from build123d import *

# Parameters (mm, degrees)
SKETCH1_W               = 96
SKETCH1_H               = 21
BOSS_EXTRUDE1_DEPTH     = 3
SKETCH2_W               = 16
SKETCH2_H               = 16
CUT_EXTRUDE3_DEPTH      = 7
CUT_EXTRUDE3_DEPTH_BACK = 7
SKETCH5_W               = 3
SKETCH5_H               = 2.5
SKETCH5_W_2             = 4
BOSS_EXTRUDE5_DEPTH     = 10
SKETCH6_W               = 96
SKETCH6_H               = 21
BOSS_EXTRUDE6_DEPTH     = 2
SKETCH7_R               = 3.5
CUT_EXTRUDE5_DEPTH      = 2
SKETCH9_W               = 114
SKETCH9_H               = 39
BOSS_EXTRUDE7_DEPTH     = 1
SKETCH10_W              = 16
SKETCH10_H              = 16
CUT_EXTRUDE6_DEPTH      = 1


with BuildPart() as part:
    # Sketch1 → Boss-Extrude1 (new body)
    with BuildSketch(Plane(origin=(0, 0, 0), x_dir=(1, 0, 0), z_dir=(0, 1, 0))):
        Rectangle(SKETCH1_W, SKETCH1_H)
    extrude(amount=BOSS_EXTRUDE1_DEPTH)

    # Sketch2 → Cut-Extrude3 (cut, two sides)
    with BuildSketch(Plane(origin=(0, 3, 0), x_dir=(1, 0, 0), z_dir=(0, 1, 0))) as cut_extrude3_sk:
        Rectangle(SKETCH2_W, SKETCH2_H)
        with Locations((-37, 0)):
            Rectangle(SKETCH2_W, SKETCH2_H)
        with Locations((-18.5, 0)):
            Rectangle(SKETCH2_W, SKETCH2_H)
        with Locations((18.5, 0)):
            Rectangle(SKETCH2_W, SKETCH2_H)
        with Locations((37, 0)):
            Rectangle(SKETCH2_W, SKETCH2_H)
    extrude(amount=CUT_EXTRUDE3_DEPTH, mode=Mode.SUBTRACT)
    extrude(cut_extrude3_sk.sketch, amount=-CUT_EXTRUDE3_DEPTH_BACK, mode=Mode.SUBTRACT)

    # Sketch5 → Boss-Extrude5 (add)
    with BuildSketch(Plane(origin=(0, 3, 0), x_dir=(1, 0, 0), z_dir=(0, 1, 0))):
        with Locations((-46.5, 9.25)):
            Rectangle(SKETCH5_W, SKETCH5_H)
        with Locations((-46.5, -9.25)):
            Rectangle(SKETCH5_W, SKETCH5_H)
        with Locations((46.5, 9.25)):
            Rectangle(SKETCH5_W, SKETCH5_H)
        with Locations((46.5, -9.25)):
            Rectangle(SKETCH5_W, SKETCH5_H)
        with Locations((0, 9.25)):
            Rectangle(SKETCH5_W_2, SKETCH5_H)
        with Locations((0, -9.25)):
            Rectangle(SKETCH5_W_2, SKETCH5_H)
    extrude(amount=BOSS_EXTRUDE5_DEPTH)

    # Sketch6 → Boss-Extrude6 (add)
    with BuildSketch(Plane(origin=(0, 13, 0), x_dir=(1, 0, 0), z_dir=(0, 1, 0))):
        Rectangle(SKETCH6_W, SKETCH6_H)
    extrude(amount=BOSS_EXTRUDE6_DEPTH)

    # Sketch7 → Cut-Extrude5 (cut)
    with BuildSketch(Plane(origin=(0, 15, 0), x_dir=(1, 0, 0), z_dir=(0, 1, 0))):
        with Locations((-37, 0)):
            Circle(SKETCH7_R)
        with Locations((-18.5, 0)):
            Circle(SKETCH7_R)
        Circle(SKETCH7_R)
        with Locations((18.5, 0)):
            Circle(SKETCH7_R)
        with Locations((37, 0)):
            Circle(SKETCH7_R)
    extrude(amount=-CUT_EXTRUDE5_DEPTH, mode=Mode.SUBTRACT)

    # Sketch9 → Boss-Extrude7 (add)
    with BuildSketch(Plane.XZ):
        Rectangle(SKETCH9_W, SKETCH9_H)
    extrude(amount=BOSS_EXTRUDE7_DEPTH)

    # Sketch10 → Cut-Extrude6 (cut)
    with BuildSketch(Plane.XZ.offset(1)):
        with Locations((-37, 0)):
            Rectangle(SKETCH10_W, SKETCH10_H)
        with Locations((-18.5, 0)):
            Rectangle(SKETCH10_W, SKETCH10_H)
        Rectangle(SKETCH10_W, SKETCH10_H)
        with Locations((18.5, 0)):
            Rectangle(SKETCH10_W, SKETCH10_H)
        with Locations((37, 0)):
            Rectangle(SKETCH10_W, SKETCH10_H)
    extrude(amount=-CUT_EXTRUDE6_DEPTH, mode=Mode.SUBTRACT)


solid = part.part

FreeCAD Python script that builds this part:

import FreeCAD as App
import Part
import Sketcher
from FreeCAD import Vector
Q = App.Units.Quantity


def add_polygon(sketch, points):
    """Adds a closed chain of lines whose ends are joined by coincident constraints."""
    first, n = sketch.GeometryCount, len(points)
    for a, b in zip(points, points[1:] + points[:1]):
        sketch.addGeometry(Part.LineSegment(App.Vector(*a, 0), App.Vector(*b, 0)), False)
    for i in range(n):
        sketch.addConstraint(Sketcher.Constraint("Coincident", first + i, 2, first + (i + 1) % n, 1))

doc = App.newDocument("Part")
body = doc.addObject("PartDesign::Body", "Body")

sketch1 = doc.addObject("Sketcher::SketchObject", "Sketch")
body.addObject(sketch1)
sketch1.AttachmentSupport = (doc.XZ_Plane, [""])
sketch1.MapMode = "FlatFace"
add_polygon(sketch1, [(-48, -10), (-48, 10), (48, 10), (48, -10)])
sketch1.addConstraint([
    Sketcher.Constraint("Vertical", 0),
    Sketcher.Constraint("Horizontal", 1),
    Sketcher.Constraint("Vertical", 2),
    Sketcher.Constraint("Horizontal", 3),
    Sketcher.Constraint("Symmetric", 0, 2, 2, 2, -1, 1),
    Sketcher.Constraint("DistanceX", 1, 1, 1, 2, Q("96 mm")),
    Sketcher.Constraint("DistanceY", 0, 1, 0, 2, Q("21 mm")),
])
pad1 = doc.addObject("PartDesign::Pad", "Pad")
body.addObject(pad1)
pad1.Profile = sketch1
pad1.Length = 3
pad1.Reversed = True

sketch2 = doc.addObject("Sketcher::SketchObject", "Sketch001")
body.addObject(sketch2)
sketch2.AttachmentSupport = (doc.XZ_Plane, [""])
sketch2.MapMode = "FlatFace"
sketch2.AttachmentOffset = App.Placement(Vector(0, 0, -3), App.Rotation())
add_polygon(sketch2, [(-8, -8), (-8, 8), (8, 8), (8, -8)])
add_polygon(sketch2, [(-45, -8), (-45, 8), (-29, 8), (-29, -8)])
add_polygon(sketch2, [(-26, -8), (-26, 8), (-10, 8), (-10, -8)])
add_polygon(sketch2, [(10, -8), (10, 8), (26, 8), (26, -8)])
add_polygon(sketch2, [(29, -8), (29, 8), (45, 8), (45, -8)])
sketch2.addConstraint([
    Sketcher.Constraint("Vertical", 0),
    Sketcher.Constraint("Horizontal", 1),
    Sketcher.Constraint("Vertical", 2),
    Sketcher.Constraint("Horizontal", 3),
    Sketcher.Constraint("Vertical", 4),
    Sketcher.Constraint("Horizontal", 5),
    Sketcher.Constraint("Vertical", 6),
    Sketcher.Constraint("Horizontal", 7),
    Sketcher.Constraint("Vertical", 8),
    Sketcher.Constraint("Horizontal", 9),
    Sketcher.Constraint("Vertical", 10),
    Sketcher.Constraint("Horizontal", 11),
    Sketcher.Constraint("Vertical", 12),
    Sketcher.Constraint("Horizontal", 13),
    Sketcher.Constraint("Vertical", 14),
    Sketcher.Constraint("Horizontal", 15),
    Sketcher.Constraint("Vertical", 16),
    Sketcher.Constraint("Horizontal", 17),
    Sketcher.Constraint("Vertical", 18),
    Sketcher.Constraint("Horizontal", 19),
    Sketcher.Constraint("Symmetric", 0, 2, 2, 2, -1, 1),
    Sketcher.Constraint("Symmetric", 10, 2, 12, 2, -1, 1),
    Sketcher.Constraint("Symmetric", 8, 2, 14, 2, -1, 1),
    Sketcher.Constraint("Symmetric", 6, 2, 16, 2, -1, 1),
    Sketcher.Constraint("Symmetric", 4, 2, 18, 2, -1, 1),
    Sketcher.Constraint("Horizontal", 1, 2, 4, 2),
    Sketcher.Constraint("Horizontal", 3, 2, 6, 2),
    Sketcher.Constraint("Horizontal", 5, 2, 8, 2),
    Sketcher.Constraint("Horizontal", 7, 2, 10, 2),
    Sketcher.Constraint("Equal", 3, 5),
    Sketcher.Constraint("Equal", 7, 9),
    Sketcher.Constraint("Equal", 19, 0),
    Sketcher.Constraint("DistanceX", 1, 1, 1, 2, Q("16 mm")),
    Sketcher.Constraint("DistanceX", 4, 2, -1, 1, Q("45 mm")),
    Sketcher.Constraint("DistanceX", 9, 2, 12, 2, Q("21 mm")),
])
pocket1 = doc.addObject("PartDesign::Pocket", "Pocket")
body.addObject(pocket1)
pocket1.Profile = sketch2
pocket1.Type = "ThroughAll"
pocket1.Midplane = True

sketch3 = doc.addObject("Sketcher::SketchObject", "Sketch002")
body.addObject(sketch3)
sketch3.AttachmentSupport = (doc.XZ_Plane, [""])
sketch3.MapMode = "FlatFace"
sketch3.AttachmentOffset = App.Placement(Vector(0, 0, -3), App.Rotation())
add_polygon(sketch3, [(-48, -10.5), (-48, -8), (-45, -8), (-45, -10.5)])
add_polygon(sketch3, [(-48, 8), (-48, 10.5), (-45, 10.5), (-45, 8)])
add_polygon(sketch3, [(45, -10.5), (45, -8), (48, -8), (48, -10.5)])
add_polygon(sketch3, [(45, 8), (45, 10.5), (48, 10.5), (48, 8)])
add_polygon(sketch3, [(-2, -10.5), (-2, -8), (2, -8), (2, -10.5)])
add_polygon(sketch3, [(-2, 8), (-2, 10.5), (2, 10.5), (2, 8)])
sketch3.addConstraint([
    Sketcher.Constraint("Vertical", 0),
    Sketcher.Constraint("Horizontal", 1),
    Sketcher.Constraint("Vertical", 2),
    Sketcher.Constraint("Horizontal", 3),
    Sketcher.Constraint("Vertical", 4),
    Sketcher.Constraint("Horizontal", 5),
    Sketcher.Constraint("Vertical", 6),
    Sketcher.Constraint("Horizontal", 7),
    Sketcher.Constraint("Vertical", 8),
    Sketcher.Constraint("Horizontal", 9),
    Sketcher.Constraint("Vertical", 10),
    Sketcher.Constraint("Horizontal", 11),
    Sketcher.Constraint("Vertical", 12),
    Sketcher.Constraint("Horizontal", 13),
    Sketcher.Constraint("Vertical", 14),
    Sketcher.Constraint("Horizontal", 15),
    Sketcher.Constraint("Vertical", 16),
    Sketcher.Constraint("Horizontal", 17),
    Sketcher.Constraint("Vertical", 18),
    Sketcher.Constraint("Horizontal", 19),
    Sketcher.Constraint("Vertical", 20),
    Sketcher.Constraint("Horizontal", 21),
    Sketcher.Constraint("Vertical", 22),
    Sketcher.Constraint("Horizontal", 23),
    Sketcher.Constraint("Symmetric", 6, 2, 8, 2, -1, 1),
    Sketcher.Constraint("Symmetric", 4, 2, 10, 2, -1, 1),
    Sketcher.Constraint("Symmetric", 2, 2, 12, 2, -1, 1),
    Sketcher.Constraint("Symmetric", 0, 2, 14, 2, -1, 1),
    Sketcher.Constraint("Symmetric", 18, 2, 20, 2, -1, 1),
    Sketcher.Constraint("Symmetric", 16, 2, 22, 2, -1, 1),
    Sketcher.Constraint("Symmetric", 1, 2, 8, 2, -2),
    Sketcher.Constraint("Symmetric", 3, 2, 10, 2, -2),
    Sketcher.Constraint("Horizontal", 9, 2, 16, 2),
    Sketcher.Constraint("Horizontal", 11, 2, 18, 2),
    Sketcher.Constraint("Vertical", 19, 2, 20, 2),
    Sketcher.Constraint("DistanceX", 1, 1, 1, 2, Q("3 mm")),
    Sketcher.Constraint("DistanceX", 17, 1, 17, 2, Q("4 mm")),
    Sketcher.Constraint("DistanceY", 0, 1, 0, 2, Q("2.5 mm")),
    Sketcher.Constraint("DistanceX", 0, 2, -1, 1, Q("48 mm")),
    Sketcher.Constraint("DistanceY", 0, 2, -1, 1, Q("8 mm")),
])
pad2 = doc.addObject("PartDesign::Pad", "Pad001")
body.addObject(pad2)
pad2.Profile = sketch3
pad2.Length = 10
pad2.Reversed = True

sketch4 = doc.addObject("Sketcher::SketchObject", "Sketch003")
body.addObject(sketch4)
sketch4.AttachmentSupport = (doc.XZ_Plane, [""])
sketch4.MapMode = "FlatFace"
sketch4.AttachmentOffset = App.Placement(Vector(0, 0, -13), App.Rotation())
add_polygon(sketch4, [(-48, -10), (-48, 10), (48, 10), (48, -10)])
sketch4.addConstraint([
    Sketcher.Constraint("Vertical", 0),
    Sketcher.Constraint("Horizontal", 1),
    Sketcher.Constraint("Vertical", 2),
    Sketcher.Constraint("Horizontal", 3),
    Sketcher.Constraint("Symmetric", 0, 2, 2, 2, -1, 1),
    Sketcher.Constraint("DistanceX", 1, 1, 1, 2, Q("96 mm")),
    Sketcher.Constraint("DistanceY", 0, 1, 0, 2, Q("21 mm")),
])
pad3 = doc.addObject("PartDesign::Pad", "Pad002")
body.addObject(pad3)
pad3.Profile = sketch4
pad3.Length = 2
pad3.Reversed = True

sketch5 = doc.addObject("Sketcher::SketchObject", "Sketch004")
body.addObject(sketch5)
sketch5.AttachmentSupport = (doc.XZ_Plane, [""])
sketch5.MapMode = "FlatFace"
sketch5.AttachmentOffset = App.Placement(Vector(0, 0, -15), App.Rotation())
sketch5.addGeometry([
    Part.Circle(Vector(-37, 0, 0), Vector(0, 0, 1), 3.5),
    Part.Circle(Vector(-18.5, 0, 0), Vector(0, 0, 1), 3.5),
    Part.Circle(Vector(0, 0, 0), Vector(0, 0, 1), 3.5),
    Part.Circle(Vector(18.5, 0, 0), Vector(0, 0, 1), 3.5),
    Part.Circle(Vector(37, 0, 0), Vector(0, 0, 1), 3.5),
], False)
sketch5.addConstraint([
    Sketcher.Constraint("Coincident", 2, 3, -1, 1),
    Sketcher.Constraint("Equal", 0, 1),
    Sketcher.Constraint("Equal", 1, 2),
    Sketcher.Constraint("Equal", 2, 3),
    Sketcher.Constraint("Equal", 3, 4),
    Sketcher.Constraint("Symmetric", 1, 3, 3, 3, -1, 1),
    Sketcher.Constraint("Symmetric", 0, 3, 4, 3, -1, 1),
    Sketcher.Constraint("PointOnObject", 0, 3, -1),
    Sketcher.Constraint("PointOnObject", 1, 3, -1),
    Sketcher.Constraint("Diameter", 0, Q("7 mm")),
    Sketcher.Constraint("DistanceX", 0, 3, -1, 1, Q("37 mm")),
    Sketcher.Constraint("DistanceX", 1, 3, 3, 3, Q("37 mm")),
])
pocket2 = doc.addObject("PartDesign::Pocket", "Pocket001")
body.addObject(pocket2)
pocket2.Profile = sketch5
pocket2.Length = 2
pocket2.Reversed = True

sketch6 = doc.addObject("Sketcher::SketchObject", "Sketch005")
body.addObject(sketch6)
sketch6.AttachmentSupport = (doc.XZ_Plane, [""])
sketch6.MapMode = "FlatFace"
add_polygon(sketch6, [(-57, 20), (-57, -20), (57, -20), (57, 20)])
sketch6.addConstraint([
    Sketcher.Constraint("Vertical", 0),
    Sketcher.Constraint("Horizontal", 1),
    Sketcher.Constraint("Vertical", 2),
    Sketcher.Constraint("Horizontal", 3),
    Sketcher.Constraint("Symmetric", 0, 2, 2, 2, -1, 1),
    Sketcher.Constraint("DistanceX", 1, 1, 1, 2, Q("114 mm")),
    Sketcher.Constraint("DistanceY", 0, 2, 0, 1, Q("39 mm")),
])
pad4 = doc.addObject("PartDesign::Pad", "Pad003")
body.addObject(pad4)
pad4.Profile = sketch6
pad4.Length = 1

sketch7 = doc.addObject("Sketcher::SketchObject", "Sketch006")
body.addObject(sketch7)
sketch7.AttachmentSupport = (doc.XZ_Plane, [""])
sketch7.MapMode = "FlatFace"
sketch7.AttachmentOffset = App.Placement(Vector(0, 0, 1), App.Rotation())
add_polygon(sketch7, [(-45, 8), (-45, -8), (-29, -8), (-29, 8)])
add_polygon(sketch7, [(-26, 8), (-26, -8), (-10, -8), (-10, 8)])
add_polygon(sketch7, [(-8, 8), (-8, -8), (8, -8), (8, 8)])
add_polygon(sketch7, [(10, 8), (10, -8), (26, -8), (26, 8)])
add_polygon(sketch7, [(29, 8), (29, -8), (45, -8), (45, 8)])
sketch7.addConstraint([
    Sketcher.Constraint("Vertical", 0),
    Sketcher.Constraint("Horizontal", 1),
    Sketcher.Constraint("Vertical", 2),
    Sketcher.Constraint("Horizontal", 3),
    Sketcher.Constraint("Vertical", 4),
    Sketcher.Constraint("Horizontal", 5),
    Sketcher.Constraint("Vertical", 6),
    Sketcher.Constraint("Horizontal", 7),
    Sketcher.Constraint("Vertical", 8),
    Sketcher.Constraint("Horizontal", 9),
    Sketcher.Constraint("Vertical", 10),
    Sketcher.Constraint("Horizontal", 11),
    Sketcher.Constraint("Vertical", 12),
    Sketcher.Constraint("Horizontal", 13),
    Sketcher.Constraint("Vertical", 14),
    Sketcher.Constraint("Horizontal", 15),
    Sketcher.Constraint("Vertical", 16),
    Sketcher.Constraint("Horizontal", 17),
    Sketcher.Constraint("Vertical", 18),
    Sketcher.Constraint("Horizontal", 19),
    Sketcher.Constraint("Symmetric", 8, 2, 10, 2, -1, 1),
    Sketcher.Constraint("Symmetric", 6, 2, 12, 2, -1, 1),
    Sketcher.Constraint("Symmetric", 4, 2, 14, 2, -1, 1),
    Sketcher.Constraint("Symmetric", 2, 2, 16, 2, -1, 1),
    Sketcher.Constraint("Symmetric", 0, 2, 18, 2, -1, 1),
    Sketcher.Constraint("Horizontal", 1, 2, 4, 2),
    Sketcher.Constraint("Horizontal", 3, 2, 6, 2),
    Sketcher.Constraint("Horizontal", 5, 2, 8, 2),
    Sketcher.Constraint("Horizontal", 7, 2, 10, 2),
    Sketcher.Constraint("Equal", 3, 5),
    Sketcher.Constraint("Equal", 7, 9),
    Sketcher.Constraint("Equal", 19, 0),
    Sketcher.Constraint("DistanceX", 1, 1, 1, 2, Q("16 mm")),
    Sketcher.Constraint("DistanceX", 0, 2, -1, 1, Q("45 mm")),
    Sketcher.Constraint("DistanceX", 5, 2, 12, 2, Q("21 mm")),
])
pocket3 = doc.addObject("PartDesign::Pocket", "Pocket002")
body.addObject(pocket3)
pocket3.Profile = sketch7
pocket3.Length = 1

doc.recompute()
